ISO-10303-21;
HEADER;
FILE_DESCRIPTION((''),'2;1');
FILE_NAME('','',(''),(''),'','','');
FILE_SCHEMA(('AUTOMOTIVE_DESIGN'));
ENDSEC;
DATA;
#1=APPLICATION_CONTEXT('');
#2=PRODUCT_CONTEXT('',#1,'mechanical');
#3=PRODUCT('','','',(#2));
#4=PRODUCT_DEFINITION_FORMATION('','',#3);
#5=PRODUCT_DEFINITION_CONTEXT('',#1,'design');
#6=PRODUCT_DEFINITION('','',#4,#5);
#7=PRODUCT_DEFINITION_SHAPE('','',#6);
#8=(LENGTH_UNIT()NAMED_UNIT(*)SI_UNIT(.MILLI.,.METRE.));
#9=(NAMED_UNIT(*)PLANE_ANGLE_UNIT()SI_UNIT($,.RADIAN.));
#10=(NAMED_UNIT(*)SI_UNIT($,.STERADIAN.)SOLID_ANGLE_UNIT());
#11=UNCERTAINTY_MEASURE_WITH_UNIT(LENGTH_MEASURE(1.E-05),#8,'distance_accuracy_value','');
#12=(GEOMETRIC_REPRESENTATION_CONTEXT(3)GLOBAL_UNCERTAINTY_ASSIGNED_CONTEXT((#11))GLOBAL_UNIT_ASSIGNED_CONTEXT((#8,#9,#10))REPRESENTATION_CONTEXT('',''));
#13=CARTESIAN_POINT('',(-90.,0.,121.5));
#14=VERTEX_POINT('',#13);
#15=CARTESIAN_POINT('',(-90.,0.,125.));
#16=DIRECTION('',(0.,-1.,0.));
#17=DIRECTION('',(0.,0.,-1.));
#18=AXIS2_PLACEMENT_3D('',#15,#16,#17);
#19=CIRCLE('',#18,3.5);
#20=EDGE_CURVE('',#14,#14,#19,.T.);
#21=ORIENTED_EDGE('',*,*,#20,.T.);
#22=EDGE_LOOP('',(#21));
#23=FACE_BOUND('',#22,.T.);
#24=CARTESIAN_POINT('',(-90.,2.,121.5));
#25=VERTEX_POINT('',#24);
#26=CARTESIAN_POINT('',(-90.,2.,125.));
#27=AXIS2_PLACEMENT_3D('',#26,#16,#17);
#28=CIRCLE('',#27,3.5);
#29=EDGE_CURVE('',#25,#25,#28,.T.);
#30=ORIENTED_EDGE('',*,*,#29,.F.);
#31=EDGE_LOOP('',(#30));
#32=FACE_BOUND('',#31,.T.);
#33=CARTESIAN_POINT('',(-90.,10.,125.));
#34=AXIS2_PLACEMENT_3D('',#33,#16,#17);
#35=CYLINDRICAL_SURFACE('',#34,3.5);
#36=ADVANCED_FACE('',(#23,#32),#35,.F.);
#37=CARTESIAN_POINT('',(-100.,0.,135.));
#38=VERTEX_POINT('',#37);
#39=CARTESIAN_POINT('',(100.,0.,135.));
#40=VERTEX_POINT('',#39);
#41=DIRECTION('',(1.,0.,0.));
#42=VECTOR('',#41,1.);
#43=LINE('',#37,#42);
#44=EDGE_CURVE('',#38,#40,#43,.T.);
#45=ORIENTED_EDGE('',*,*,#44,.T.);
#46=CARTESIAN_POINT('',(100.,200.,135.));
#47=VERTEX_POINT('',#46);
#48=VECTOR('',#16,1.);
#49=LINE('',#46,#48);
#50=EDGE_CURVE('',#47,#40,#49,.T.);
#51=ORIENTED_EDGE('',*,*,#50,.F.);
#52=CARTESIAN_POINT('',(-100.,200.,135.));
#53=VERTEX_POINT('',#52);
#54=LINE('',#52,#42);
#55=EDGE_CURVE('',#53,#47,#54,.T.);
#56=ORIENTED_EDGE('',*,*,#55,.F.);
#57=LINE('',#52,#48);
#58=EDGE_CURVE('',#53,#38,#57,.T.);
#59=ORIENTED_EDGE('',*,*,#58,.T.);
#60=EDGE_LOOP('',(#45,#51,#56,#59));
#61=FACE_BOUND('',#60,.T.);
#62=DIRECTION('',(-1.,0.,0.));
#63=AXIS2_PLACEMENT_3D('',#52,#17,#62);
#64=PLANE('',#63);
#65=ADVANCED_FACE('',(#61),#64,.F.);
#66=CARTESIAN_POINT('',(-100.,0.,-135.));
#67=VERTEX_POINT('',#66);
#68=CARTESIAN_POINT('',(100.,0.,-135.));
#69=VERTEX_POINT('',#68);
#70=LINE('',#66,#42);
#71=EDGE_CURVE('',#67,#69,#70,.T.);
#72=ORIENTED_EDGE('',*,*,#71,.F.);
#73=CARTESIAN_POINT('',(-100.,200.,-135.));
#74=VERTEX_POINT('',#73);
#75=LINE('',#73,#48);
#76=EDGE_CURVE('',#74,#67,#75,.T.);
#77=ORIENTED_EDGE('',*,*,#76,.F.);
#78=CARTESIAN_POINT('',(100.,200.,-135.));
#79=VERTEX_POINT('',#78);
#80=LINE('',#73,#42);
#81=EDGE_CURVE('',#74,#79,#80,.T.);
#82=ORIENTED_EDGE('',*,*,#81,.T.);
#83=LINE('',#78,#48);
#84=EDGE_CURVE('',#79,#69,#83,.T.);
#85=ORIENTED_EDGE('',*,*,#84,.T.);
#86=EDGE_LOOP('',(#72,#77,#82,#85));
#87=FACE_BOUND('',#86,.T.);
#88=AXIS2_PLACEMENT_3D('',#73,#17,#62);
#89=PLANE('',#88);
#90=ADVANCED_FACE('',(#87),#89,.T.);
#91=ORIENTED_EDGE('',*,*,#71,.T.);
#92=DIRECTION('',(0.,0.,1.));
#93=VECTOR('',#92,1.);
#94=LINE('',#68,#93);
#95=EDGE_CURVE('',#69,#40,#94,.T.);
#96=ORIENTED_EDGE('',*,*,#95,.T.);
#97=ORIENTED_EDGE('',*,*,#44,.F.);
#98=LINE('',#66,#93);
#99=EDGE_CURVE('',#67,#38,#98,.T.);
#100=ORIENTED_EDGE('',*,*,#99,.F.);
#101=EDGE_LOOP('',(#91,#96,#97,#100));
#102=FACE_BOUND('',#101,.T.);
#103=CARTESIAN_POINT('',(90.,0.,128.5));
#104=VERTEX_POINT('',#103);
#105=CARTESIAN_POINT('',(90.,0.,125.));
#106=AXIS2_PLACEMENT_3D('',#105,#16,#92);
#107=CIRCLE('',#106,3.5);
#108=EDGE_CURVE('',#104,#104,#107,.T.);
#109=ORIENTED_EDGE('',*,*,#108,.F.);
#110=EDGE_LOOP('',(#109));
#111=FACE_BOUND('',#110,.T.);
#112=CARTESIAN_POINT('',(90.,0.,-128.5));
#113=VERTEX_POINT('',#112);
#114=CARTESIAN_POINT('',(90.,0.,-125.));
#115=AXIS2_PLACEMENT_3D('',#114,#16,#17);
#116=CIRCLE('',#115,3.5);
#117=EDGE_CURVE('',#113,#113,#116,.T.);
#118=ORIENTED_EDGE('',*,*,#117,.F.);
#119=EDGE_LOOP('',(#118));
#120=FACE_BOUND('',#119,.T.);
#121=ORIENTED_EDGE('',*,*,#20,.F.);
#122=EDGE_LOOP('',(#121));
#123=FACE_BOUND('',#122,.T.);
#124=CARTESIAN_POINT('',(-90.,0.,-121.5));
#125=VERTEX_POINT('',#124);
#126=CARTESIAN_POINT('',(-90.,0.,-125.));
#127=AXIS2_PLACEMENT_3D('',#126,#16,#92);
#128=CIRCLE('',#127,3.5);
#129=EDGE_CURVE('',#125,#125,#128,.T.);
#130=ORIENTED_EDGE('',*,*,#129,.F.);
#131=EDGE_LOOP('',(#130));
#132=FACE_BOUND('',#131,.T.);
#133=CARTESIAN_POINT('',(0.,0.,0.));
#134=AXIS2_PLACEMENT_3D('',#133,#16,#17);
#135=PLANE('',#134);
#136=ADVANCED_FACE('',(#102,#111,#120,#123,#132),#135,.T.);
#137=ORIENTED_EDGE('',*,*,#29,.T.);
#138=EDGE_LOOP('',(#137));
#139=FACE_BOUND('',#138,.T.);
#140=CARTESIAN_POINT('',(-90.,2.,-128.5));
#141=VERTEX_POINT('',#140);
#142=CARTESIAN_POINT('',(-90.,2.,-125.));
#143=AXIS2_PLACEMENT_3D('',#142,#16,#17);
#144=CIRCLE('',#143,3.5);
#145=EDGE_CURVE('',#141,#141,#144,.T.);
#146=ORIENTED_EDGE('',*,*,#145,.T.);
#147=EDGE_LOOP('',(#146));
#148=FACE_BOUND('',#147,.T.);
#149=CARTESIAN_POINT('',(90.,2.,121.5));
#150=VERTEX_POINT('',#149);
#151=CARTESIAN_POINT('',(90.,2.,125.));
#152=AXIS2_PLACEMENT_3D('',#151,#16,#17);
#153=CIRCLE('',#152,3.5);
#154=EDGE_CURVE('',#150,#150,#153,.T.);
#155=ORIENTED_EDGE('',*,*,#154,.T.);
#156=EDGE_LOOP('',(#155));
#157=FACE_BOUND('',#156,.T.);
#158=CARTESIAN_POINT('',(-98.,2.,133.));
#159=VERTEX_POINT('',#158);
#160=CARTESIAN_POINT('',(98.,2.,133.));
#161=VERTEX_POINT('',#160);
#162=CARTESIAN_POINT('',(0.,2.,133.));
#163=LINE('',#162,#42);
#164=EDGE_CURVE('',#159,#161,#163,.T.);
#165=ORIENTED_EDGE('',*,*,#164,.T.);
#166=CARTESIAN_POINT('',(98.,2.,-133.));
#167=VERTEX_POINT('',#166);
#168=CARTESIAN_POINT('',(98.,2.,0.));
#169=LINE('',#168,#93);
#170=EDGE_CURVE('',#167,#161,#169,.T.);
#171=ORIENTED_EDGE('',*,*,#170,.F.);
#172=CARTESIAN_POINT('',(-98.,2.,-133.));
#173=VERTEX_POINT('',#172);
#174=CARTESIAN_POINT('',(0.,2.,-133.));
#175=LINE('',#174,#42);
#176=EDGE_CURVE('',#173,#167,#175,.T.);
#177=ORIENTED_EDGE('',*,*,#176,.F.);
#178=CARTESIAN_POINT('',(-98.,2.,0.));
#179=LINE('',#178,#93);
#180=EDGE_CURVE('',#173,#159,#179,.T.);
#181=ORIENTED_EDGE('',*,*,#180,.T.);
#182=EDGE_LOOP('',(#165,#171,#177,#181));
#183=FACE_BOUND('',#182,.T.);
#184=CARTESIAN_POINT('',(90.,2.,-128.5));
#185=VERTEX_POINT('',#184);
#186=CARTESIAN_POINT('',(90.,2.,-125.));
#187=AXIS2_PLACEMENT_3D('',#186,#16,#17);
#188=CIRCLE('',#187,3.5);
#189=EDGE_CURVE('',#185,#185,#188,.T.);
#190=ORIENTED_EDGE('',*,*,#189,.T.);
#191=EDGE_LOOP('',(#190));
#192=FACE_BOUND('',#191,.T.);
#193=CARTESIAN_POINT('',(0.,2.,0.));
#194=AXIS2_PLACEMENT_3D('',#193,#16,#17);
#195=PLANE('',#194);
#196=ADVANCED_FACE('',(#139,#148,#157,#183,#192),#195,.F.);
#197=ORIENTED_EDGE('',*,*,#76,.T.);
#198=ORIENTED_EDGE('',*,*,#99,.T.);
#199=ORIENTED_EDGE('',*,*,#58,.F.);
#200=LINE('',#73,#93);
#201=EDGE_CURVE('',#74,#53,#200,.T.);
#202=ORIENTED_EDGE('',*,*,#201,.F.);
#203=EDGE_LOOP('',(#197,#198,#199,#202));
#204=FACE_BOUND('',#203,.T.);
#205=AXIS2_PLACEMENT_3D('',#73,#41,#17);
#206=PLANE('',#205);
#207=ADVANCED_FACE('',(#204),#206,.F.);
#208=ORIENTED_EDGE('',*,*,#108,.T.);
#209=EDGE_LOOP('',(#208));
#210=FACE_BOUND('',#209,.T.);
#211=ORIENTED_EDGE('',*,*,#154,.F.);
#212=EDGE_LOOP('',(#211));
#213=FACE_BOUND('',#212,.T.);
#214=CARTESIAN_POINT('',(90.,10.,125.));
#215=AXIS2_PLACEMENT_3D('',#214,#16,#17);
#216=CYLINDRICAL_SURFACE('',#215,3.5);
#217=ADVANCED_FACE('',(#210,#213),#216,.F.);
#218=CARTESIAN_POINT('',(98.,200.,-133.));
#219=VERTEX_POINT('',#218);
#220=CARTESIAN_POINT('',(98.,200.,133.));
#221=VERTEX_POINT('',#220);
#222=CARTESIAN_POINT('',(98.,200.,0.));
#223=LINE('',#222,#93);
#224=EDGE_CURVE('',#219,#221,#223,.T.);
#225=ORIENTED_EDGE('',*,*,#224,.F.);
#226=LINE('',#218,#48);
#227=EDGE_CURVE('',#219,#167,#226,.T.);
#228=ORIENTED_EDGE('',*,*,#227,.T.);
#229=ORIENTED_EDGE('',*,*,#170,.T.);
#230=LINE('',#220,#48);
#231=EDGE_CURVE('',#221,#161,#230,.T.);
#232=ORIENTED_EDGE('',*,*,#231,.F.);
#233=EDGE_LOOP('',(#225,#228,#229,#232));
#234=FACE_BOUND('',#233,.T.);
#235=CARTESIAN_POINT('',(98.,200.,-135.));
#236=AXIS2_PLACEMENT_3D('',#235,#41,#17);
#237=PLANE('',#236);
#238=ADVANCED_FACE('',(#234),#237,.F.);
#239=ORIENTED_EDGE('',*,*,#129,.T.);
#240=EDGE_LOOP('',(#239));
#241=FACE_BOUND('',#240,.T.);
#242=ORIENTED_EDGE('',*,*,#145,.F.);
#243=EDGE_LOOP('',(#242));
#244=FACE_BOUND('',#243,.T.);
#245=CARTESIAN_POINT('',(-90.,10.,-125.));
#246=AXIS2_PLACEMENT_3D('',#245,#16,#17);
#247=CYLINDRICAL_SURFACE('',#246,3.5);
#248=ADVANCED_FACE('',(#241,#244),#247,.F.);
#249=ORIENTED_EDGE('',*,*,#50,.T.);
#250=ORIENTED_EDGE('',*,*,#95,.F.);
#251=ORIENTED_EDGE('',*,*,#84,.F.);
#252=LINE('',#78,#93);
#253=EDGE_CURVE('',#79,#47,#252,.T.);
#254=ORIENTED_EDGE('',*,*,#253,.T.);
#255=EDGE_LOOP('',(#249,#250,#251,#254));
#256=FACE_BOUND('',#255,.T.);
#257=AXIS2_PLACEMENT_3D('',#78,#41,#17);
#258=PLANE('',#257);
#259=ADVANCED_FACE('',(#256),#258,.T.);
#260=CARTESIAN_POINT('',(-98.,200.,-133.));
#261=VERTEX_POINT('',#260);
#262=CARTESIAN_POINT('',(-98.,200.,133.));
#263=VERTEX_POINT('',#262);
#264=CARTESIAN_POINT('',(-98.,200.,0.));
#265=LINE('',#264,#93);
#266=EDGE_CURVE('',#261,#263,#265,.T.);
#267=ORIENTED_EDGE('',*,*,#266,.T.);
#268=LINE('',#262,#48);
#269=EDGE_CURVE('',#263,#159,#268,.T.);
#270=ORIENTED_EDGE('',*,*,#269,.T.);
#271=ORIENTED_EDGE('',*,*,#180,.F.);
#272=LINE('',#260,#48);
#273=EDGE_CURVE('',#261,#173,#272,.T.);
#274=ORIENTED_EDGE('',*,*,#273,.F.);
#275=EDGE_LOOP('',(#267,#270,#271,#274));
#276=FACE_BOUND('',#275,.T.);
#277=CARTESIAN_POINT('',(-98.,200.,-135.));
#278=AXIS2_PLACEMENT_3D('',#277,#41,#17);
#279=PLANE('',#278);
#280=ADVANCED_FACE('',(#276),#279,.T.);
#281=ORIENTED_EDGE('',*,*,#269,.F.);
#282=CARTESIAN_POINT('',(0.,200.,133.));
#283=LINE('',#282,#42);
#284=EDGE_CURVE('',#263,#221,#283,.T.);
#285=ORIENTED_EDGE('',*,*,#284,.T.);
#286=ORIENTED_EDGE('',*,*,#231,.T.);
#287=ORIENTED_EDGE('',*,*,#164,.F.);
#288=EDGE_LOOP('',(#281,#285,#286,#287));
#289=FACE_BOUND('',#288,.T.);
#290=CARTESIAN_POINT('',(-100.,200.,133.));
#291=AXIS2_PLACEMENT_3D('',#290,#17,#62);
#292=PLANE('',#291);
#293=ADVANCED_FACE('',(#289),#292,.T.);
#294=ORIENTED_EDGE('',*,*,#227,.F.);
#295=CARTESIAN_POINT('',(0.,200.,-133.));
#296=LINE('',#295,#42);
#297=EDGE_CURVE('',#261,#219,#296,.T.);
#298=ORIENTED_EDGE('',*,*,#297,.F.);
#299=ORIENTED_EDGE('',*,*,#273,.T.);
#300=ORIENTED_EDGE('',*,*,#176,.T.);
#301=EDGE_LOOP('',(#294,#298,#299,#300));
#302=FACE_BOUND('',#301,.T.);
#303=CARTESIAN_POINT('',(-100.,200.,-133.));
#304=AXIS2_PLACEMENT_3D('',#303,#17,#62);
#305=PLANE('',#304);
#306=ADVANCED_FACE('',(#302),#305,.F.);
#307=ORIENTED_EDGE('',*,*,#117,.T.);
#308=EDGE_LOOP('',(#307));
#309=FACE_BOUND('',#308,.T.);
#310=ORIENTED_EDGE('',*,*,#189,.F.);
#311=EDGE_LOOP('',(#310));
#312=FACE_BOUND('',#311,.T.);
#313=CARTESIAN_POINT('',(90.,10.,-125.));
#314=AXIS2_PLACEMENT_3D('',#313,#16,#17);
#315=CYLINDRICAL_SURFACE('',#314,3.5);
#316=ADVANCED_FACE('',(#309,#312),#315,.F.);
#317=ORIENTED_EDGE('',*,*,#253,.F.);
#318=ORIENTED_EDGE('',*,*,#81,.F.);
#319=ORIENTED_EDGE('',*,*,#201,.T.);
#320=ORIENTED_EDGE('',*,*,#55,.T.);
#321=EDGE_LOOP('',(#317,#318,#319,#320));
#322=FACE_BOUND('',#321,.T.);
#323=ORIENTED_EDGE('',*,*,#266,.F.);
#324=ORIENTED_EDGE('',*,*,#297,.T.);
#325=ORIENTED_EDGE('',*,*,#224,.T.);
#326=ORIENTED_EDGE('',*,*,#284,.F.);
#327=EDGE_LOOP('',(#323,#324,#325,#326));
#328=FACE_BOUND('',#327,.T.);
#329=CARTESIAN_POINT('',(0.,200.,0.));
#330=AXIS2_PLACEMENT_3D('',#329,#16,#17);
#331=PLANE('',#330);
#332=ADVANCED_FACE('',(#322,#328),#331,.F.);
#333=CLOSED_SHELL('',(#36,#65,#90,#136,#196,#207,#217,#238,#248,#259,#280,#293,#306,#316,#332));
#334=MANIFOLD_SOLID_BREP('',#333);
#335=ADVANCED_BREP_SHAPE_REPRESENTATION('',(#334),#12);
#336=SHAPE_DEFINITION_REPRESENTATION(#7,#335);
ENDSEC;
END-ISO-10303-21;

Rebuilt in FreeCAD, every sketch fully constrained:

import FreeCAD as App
import Part
import Sketcher


def faces_at(feature, points):
    """Names of the faces that lie closest to the given points."""
    faces = feature.Shape.Faces
    near = lambda p: min(range(len(faces)), key=lambda i: faces[i].distToShape(Part.Vertex(*p))[0])
    return sorted({f"Face{near(p) + 1}" for p in points})

doc = App.newDocument("Part")
body = doc.addObject("PartDesign::Body", "Body")

# Sketch on XZ plane
sketch1 = doc.addObject("Sketcher::SketchObject", "Sketch")
body.addObject(sketch1)
sketch1.AttachmentSupport = (doc.XZ_Plane, [""])
sketch1.MapMode = "FlatFace"
sketch1.addGeometry([
    Part.LineSegment(App.Vector(-100, -135, 0), App.Vector(-100, 135, 0)),
    Part.LineSegment(App.Vector(-100, 135, 0), App.Vector(100, 135, 0)),
    Part.LineSegment(App.Vector(100, 135, 0), App.Vector(100, -135, 0)),
    Part.LineSegment(App.Vector(100, -135, 0), App.Vector(-100, -135, 0)),
], False)
sketch1.addConstraint([
    Sketcher.Constraint("Coincident", 0, 2, 1, 1),
    Sketcher.Constraint("Coincident", 1, 2, 2, 1),
    Sketcher.Constraint("Coincident", 2, 2, 3, 1),
    Sketcher.Constraint("Coincident", 3, 2, 0, 1),
    Sketcher.Constraint("Vertical", 0),
    Sketcher.Constraint("Horizontal", 1),
    Sketcher.Constraint("Vertical", 2),
    Sketcher.Constraint("Horizontal", 3),
    Sketcher.Constraint("Symmetric", 0, 2, 2, 2, -1, 1),
    Sketcher.Constraint("DistanceX", 1, 1, 1, 2, 200.0),
    Sketcher.Constraint("DistanceY", 0, 1, 0, 2, 270.0),
])
pad1 = doc.addObject("PartDesign::Pad", "Pad")
body.addObject(pad1)
pad1.Profile = sketch1
pad1.Length = 200
pad1.Reversed = True
doc.recompute()

thickness = doc.addObject("PartDesign::Thickness", "Thickness")
body.addObject(thickness)
thickness.Base = (pad1, faces_at(pad1, [(0, 200, 0)]))
thickness.Value = 2
thickness.Reversed = True
thickness.Join = "Intersection"

# Sketch on XZ plane
sketch2 = doc.addObject("Sketcher::SketchObject", "Sketch001")
body.addObject(sketch2)
sketch2.AttachmentSupport = (doc.XZ_Plane, [""])
sketch2.MapMode = "FlatFace"
sketch2.addGeometry([
    Part.Circle(App.Vector(-90, 125, 0), App.Vector(0, 0, 1), 3.5),
    Part.Circle(App.Vector(90, 125, 0), App.Vector(0, 0, 1), 3.5),
    Part.Circle(App.Vector(90, -125, 0), App.Vector(0, 0, 1), 3.5),
    Part.Circle(App.Vector(-90, -125, 0), App.Vector(0, 0, 1), 3.5),
], False)
sketch2.addConstraint([
    Sketcher.Constraint("Equal", 0, 1),
    Sketcher.Constraint("Equal", 1, 2),
    Sketcher.Constraint("Equal", 2, 3),
    Sketcher.Constraint("Symmetric", 0, 3, 2, 3, -1, 1),
    Sketcher.Constraint("Symmetric", 1, 3, 3, 3, -1, 1),
    Sketcher.Constraint("Symmetric", 0, 3, 1, 3, -2),
    Sketcher.Constraint("Diameter", 0, 7.0),
    Sketcher.Constraint("DistanceX", 0, 3, -1, 1, 90.0),
    Sketcher.Constraint("DistanceY", -1, 1, 0, 3, 125.0),
])
pocket1 = doc.addObject("PartDesign::Pocket", "Pocket")
body.addObject(pocket1)
pocket1.Profile = sketch2
pocket1.Length = 10

doc.recompute()
